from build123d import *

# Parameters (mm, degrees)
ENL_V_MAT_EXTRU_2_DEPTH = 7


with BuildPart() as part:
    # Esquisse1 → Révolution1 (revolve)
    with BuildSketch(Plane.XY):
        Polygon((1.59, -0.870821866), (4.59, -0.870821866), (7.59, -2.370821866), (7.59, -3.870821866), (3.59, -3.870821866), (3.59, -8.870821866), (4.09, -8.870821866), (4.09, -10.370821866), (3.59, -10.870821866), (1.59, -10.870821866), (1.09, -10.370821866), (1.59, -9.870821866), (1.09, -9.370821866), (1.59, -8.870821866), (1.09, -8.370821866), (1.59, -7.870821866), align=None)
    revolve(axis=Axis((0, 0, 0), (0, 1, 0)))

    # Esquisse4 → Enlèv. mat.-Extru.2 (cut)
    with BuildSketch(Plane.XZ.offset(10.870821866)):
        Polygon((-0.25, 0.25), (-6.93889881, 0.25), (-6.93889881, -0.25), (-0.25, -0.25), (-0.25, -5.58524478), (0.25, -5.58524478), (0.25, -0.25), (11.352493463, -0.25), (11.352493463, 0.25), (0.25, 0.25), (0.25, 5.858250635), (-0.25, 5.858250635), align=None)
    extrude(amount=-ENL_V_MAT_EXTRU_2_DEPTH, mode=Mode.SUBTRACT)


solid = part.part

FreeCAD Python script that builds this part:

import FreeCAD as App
import Part
import Sketcher
from FreeCAD import Vector
Q = App.Units.Quantity

doc = App.newDocument("Part")
body = doc.addObject("PartDesign::Body", "Body")

# Sketch on XY plane
sketch1 = body.newObject("Sketcher::SketchObject", "Sketch")
sketch1.AttachmentSupport = (doc.getObject("XY_Plane"), [""])
sketch1.MapMode = "FlatFace"
sketch1.addGeometry(Part.LineSegment(Vector(4.6, -0.9, 0), Vector(1.6, -0.9, 0)), False)
sketch1.addGeometry(Part.LineSegment(Vector(1.6, -0.9, 0), Vector(1.6, -7.9, 0)), False)
sketch1.addGeometry(Part.LineSegment(Vector(1.6, -7.9, 0), Vector(1.1, -8.4, 0)), False)
sketch1.addGeometry(Part.LineSegment(Vector(1.1, -8.4, 0), Vector(1.6, -8.9, 0)), False)
sketch1.addGeometry(Part.LineSegment(Vector(1.6, -8.9, 0), Vector(1.1, -9.4, 0)), False)
sketch1.addGeometry(Part.LineSegment(Vector(1.1, -9.4, 0), Vector(1.6, -9.9, 0)), False)
sketch1.addGeometry(Part.LineSegment(Vector(1.6, -9.9, 0), Vector(1.1, -10.4, 0)), False)
sketch1.addGeometry(Part.LineSegment(Vector(1.1, -10.4, 0), Vector(1.6, -10.9, 0)), False)
sketch1.addGeometry(Part.LineSegment(Vector(1.6, -10.9, 0), Vector(3.6, -10.9, 0)), False)
sketch1.addGeometry(Part.LineSegment(Vector(3.6, -10.9, 0), Vector(4.1, -10.4, 0)), False)
sketch1.addGeometry(Part.LineSegment(Vector(4.1, -10.4, 0), Vector(4.1, -8.9, 0)), False)
sketch1.addGeometry(Part.LineSegment(Vector(4.1, -8.9, 0), Vector(3.6, -8.9, 0)), False)
sketch1.addGeometry(Part.LineSegment(Vector(3.6, -8.9, 0), Vector(3.6, -3.9, 0)), False)
sketch1.addGeometry(Part.LineSegment(Vector(3.6, -3.9, 0), Vector(7.6, -3.9, 0)), False)
sketch1.addGeometry(Part.LineSegment(Vector(7.6, -3.9, 0), Vector(7.6, -2.4, 0)), False)
sketch1.addGeometry(Part.LineSegment(Vector(7.6, -2.4, 0), Vector(4.6, -0.9, 0)), False)
sketch1.addConstraint(Sketcher.Constraint("Coincident", 0, 2, 1, 1))
sketch1.addConstraint(Sketcher.Constraint("Coincident", 1, 2, 2, 1))
sketch1.addConstraint(Sketcher.Constraint("Coincident", 2, 2, 3, 1))
sketch1.addConstraint(Sketcher.Constraint("Coincident", 3, 2, 4, 1))
sketch1.addConstraint(Sketcher.Constraint("Coincident", 4, 2, 5, 1))
sketch1.addConstraint(Sketcher.Constraint("Coincident", 5, 2, 6, 1))
sketch1.addConstraint(Sketcher.Constraint("Coincident", 6, 2, 7, 1))
sketch1.addConstraint(Sketcher.Constraint("Coincident", 7, 2, 8, 1))
sketch1.addConstraint(Sketcher.Constraint("Coincident", 8, 2, 9, 1))
sketch1.addConstraint(Sketcher.Constraint("Coincident", 9, 2, 10, 1))
sketch1.addConstraint(Sketcher.Constraint("Coincident", 10, 2, 11, 1))
sketch1.addConstraint(Sketcher.Constraint("Coincident", 11, 2, 12, 1))
sketch1.addConstraint(Sketcher.Constraint("Coincident", 12, 2, 13, 1))
sketch1.addConstraint(Sketcher.Constraint("Coincident", 13, 2, 14, 1))
sketch1.addConstraint(Sketcher.Constraint("Coincident", 14, 2, 15, 1))
sketch1.addConstraint(Sketcher.Constraint("Coincident", 15, 2, 0, 1))
sketch1.addConstraint(Sketcher.Constraint("Horizontal", 0))
sketch1.addConstraint(Sketcher.Constraint("Vertical", 1))
sketch1.addConstraint(Sketcher.Constraint("Horizontal", 8))
sketch1.addConstraint(Sketcher.Constraint("Vertical", 10))
sketch1.addConstraint(Sketcher.Constraint("Horizontal", 11))
sketch1.addConstraint(Sketcher.Constraint("Vertical", 12))
sketch1.addConstraint(Sketcher.Constraint("Horizontal", 13))
sketch1.addConstraint(Sketcher.Constraint("Vertical", 14))
sketch1.addConstraint(Sketcher.Constraint("Perpendicular", 2, 3))
sketch1.addConstraint(Sketcher.Constraint("Perpendicular", 3, 4))
sketch1.addConstraint(Sketcher.Constraint("Perpendicular", 4, 5))
sketch1.addConstraint(Sketcher.Constraint("Perpendicular", 5, 6))
sketch1.addConstraint(Sketcher.Constraint("Perpendicular", 6, 7))
sketch1.addConstraint(Sketcher.Constraint("Perpendicular", 7, 9))
sketch1.addConstraint(Sketcher.Constraint("Horizontal", 6, 2, 9, 2))
sketch1.addConstraint(Sketcher.Constraint("Horizontal", 3, 2, 10, 2))
sketch1.addConstraint(Sketcher.Constraint("Vertical", 1, 2, 3, 2))
sketch1.addConstraint(Sketcher.Constraint("Vertical", 2, 2, 4, 2))
sketch1.addConstraint(Sketcher.Constraint("Vertical", 3, 2, 5, 2))
sketch1.addConstraint(Sketcher.Constraint("Vertical", 4, 2, 6, 2))
sketch1.addConstraint(Sketcher.Constraint("Vertical", 5, 2, 7, 2))
sketch1.addConstraint(Sketcher.Constraint("Vertical", 8, 2, 11, 2))
sketch1.addConstraint(Sketcher.Constraint("Equal", 10, 14))
sketch1.addConstraint(Sketcher.Constraint("Equal", 2, 3))
sketch1.addConstraint(Sketcher.Constraint("DistanceX", 0, 2, 0, 1, Q("3 mm")))
sketch1.addConstraint(Sketcher.Constraint("DistanceX", 8, 1, 8, 2, Q("2 mm")))
sketch1.addConstraint(Sketcher.Constraint("DistanceX", 13, 1, 13, 2, Q("4 mm")))
sketch1.addConstraint(Sketcher.Constraint("DistanceY", 1, 2, 1, 1, Q("7 mm")))
sketch1.addConstraint(Sketcher.Constraint("DistanceY", 12, 1, 12, 2, Q("5 mm")))
sketch1.addConstraint(Sketcher.Constraint("DistanceX", 11, 2, 11, 1, Q("0.5 mm")))
sketch1.addConstraint(Sketcher.Constraint("DistanceX", -1, 1, 0, 2, Q("1.59 mm")))
sketch1.addConstraint(Sketcher.Constraint("DistanceY", 0, 2, -1, 1, Q("0.870822 mm")))
revolution = body.newObject("PartDesign::Revolution", "Revolution")
revolution.Profile = sketch1
revolution.ReferenceAxis = (sketch1, ["V_Axis"])
revolution.Angle = 360

# Sketch on XZ plane
sketch2 = body.newObject("Sketcher::SketchObject", "Sketch001")
sketch2.AttachmentSupport = (doc.getObject("XZ_Plane"), [""])
sketch2.MapMode = "FlatFace"
sketch2.AttachmentOffset = App.Placement(Vector(0, 0, 10.870822), App.Rotation())
sketch2.addGeometry(Part.LineSegment(Vector(-0.2, 0.2, 0), Vector(-6.9, 0.2, 0)), False)
sketch2.addGeometry(Part.LineSegment(Vector(-6.9, 0.2, 0), Vector(-6.9, -0.2, 0)), False)
sketch2.addGeometry(Part.LineSegment(Vector(-6.9, -0.2, 0), Vector(-0.2, -0.2, 0)), False)
sketch2.addGeometry(Part.LineSegment(Vector(-0.2, -0.2, 0), Vector(-0.2, -5.6, 0)), False)
sketch2.addGeometry(Part.LineSegment(Vector(-0.2, -5.6, 0), Vector(0.2, -5.6, 0)), False)
sketch2.addGeometry(Part.LineSegment(Vector(0.2, -5.6, 0), Vector(0.2, -0.2, 0)), False)
sketch2.addGeometry(Part.LineSegment(Vector(0.2, -0.2, 0), Vector(11.4, -0.2, 0)), False)
sketch2.addGeometry(Part.LineSegment(Vector(11.4, -0.2, 0), Vector(11.4, 0.2, 0)), False)
sketch2.addGeometry(Part.LineSegment(Vector(11.4, 0.2, 0), Vector(0.2, 0.2, 0)), False)
sketch2.addGeometry(Part.LineSegment(Vector(0.2, 0.2, 0), Vector(0.2, 5.9, 0)), False)
sketch2.addGeometry(Part.LineSegment(Vector(0.2, 5.9, 0), Vector(-0.2, 5.9, 0)), False)
sketch2.addGeometry(Part.LineSegment(Vector(-0.2, 5.9, 0), Vector(-0.2, 0.2, 0)), False)
sketch2.addConstraint(Sketcher.Constraint("Coincident", 0, 2, 1, 1))
sketch2.addConstraint(Sketcher.Constraint("Coincident", 1, 2, 2, 1))
sketch2.addConstraint(Sketcher.Constraint("Coincident", 2, 2, 3, 1))
sketch2.addConstraint(Sketcher.Constraint("Coincident", 3, 2, 4, 1))
sketch2.addConstraint(Sketcher.Constraint("Coincident", 4, 2, 5, 1))
sketch2.addConstraint(Sketcher.Constraint("Coincident", 5, 2, 6, 1))
sketch2.addConstraint(Sketcher.Constraint("Coincident", 6, 2, 7, 1))
sketch2.addConstraint(Sketcher.Constraint("Coincident", 7, 2, 8, 1))
sketch2.addConstraint(Sketcher.Constraint("Coincident", 8, 2, 9, 1))
sketch2.addConstraint(Sketcher.Constraint("Coincident", 9, 2, 10, 1))
sketch2.addConstraint(Sketcher.Constraint("Coincident", 10, 2, 11, 1))
sketch2.addConstraint(Sketcher.Constraint("Coincident", 11, 2, 0, 1))
sketch2.addConstraint(Sketcher.Constraint("Horizontal", 0))
sketch2.addConstraint(Sketcher.Constraint("Vertical", 1))
sketch2.addConstraint(Sketcher.Constraint("Horizontal", 2))
sketch2.addConstraint(Sketcher.Constraint("Vertical", 3))
sketch2.addConstraint(Sketcher.Constraint("Horizontal", 4))
sketch2.addConstraint(Sketcher.Constraint("Vertical", 5))
sketch2.addConstraint(Sketcher.Constraint("Horizontal", 6))
sketch2.addConstraint(Sketcher.Constraint("Vertical", 7))
sketch2.addConstraint(Sketcher.Constraint("Horizontal", 8))
sketch2.addConstraint(Sketcher.Constraint("Vertical", 9))
sketch2.addConstraint(Sketcher.Constraint("Horizontal", 10))
sketch2.addConstraint(Sketcher.Constraint("Vertical", 11))
sketch2.addConstraint(Sketcher.Constraint("Symmetric", 2, 2, 8, 2, -1, 1))
sketch2.addConstraint(Sketcher.Constraint("Symmetric", 5, 2, 11, 2, -1, 1))
sketch2.addConstraint(Sketcher.Constraint("Symmetric", 2, 2, 5, 2, -2))
sketch2.addConstraint(Sketcher.Constraint("Equal", 10, 1))
sketch2.addConstraint(Sketcher.Constraint("DistanceX", 4, 1, 4, 2, Q("0.5 mm")))
sketch2.addConstraint(Sketcher.Constraint("DistanceX", 0, 2, 0, 1, Q("6.688899 mm")))
sketch2.addConstraint(Sketcher.Constraint("DistanceY", 9, 1, 9, 2, Q("5.608251 mm")))
sketch2.addConstraint(Sketcher.Constraint("DistanceX", 6, 1, 6, 2, Q("11.102493 mm")))
sketch2.addConstraint(Sketcher.Constraint("DistanceY", 3, 2, 3, 1, Q("5.335245 mm")))
pocket1 = body.newObject("PartDesign::Pocket", "Pocket")
pocket1.Profile = sketch2
pocket1.Length = 7

doc.recompute()
